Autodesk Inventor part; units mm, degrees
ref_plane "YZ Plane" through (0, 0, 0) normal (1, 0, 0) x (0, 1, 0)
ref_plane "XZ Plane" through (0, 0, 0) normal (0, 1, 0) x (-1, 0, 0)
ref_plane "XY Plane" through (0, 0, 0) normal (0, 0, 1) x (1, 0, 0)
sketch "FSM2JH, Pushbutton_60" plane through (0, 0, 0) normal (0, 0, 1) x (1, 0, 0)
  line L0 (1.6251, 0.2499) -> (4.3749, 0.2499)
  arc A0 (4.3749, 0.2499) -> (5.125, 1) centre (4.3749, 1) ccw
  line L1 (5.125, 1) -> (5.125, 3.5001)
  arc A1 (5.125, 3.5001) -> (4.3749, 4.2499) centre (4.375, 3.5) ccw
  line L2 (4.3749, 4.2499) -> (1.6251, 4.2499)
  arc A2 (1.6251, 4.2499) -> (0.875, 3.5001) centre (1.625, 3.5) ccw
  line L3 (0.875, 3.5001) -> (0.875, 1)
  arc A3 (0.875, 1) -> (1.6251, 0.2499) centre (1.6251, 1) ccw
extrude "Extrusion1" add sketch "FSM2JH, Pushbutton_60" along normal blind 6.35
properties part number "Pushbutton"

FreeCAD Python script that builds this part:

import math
import FreeCAD as App
import Part
import Sketcher
from FreeCAD import Vector
Q = App.Units.Quantity

doc = App.newDocument("Part")
params = doc.addObject("Spreadsheet::Sheet", "Params")
for row, (alias, value) in enumerate([
    ("sketch1_radius", "0.75 mm"),
    ("sketch1_height", "2.5 mm"),
    ("pad1_length", "6.35 mm"),
], start=1):
    params.set(f"A{row}", alias)
    params.set(f"B{row}", "=" + value)
    params.setAlias(f"B{row}", alias)

body = doc.addObject("PartDesign::Body", "Body")

# Sketch on XY plane
sketch1 = body.newObject("Sketcher::SketchObject", "Sketch")
sketch1.AttachmentSupport = (doc.getObject("XY_Plane"), [""])
sketch1.MapMode = "FlatFace"
sketch1.addGeometry(Part.ArcOfCircle(Part.Circle(Vector(1.6251, 1, 0), Vector(0, 0, 1), 0.7501), math.radians(180), math.radians(270)), False)
sketch1.addGeometry(Part.LineSegment(Vector(1.6251, 0.2499, 0), Vector(4.3749, 0.2499, 0)), False)
sketch1.addGeometry(Part.ArcOfCircle(Part.Circle(Vector(4.3749, 1, 0), Vector(0, 0, 1), 0.7501), math.radians(-90), math.radians(0)), False)
sketch1.addGeometry(Part.LineSegment(Vector(5.125, 1, 0), Vector(5.125, 3.5001, 0)), False)
sketch1.addGeometry(Part.ArcOfCircle(Part.Circle(Vector(4.375, 3.5, 0), Vector(0, 0, 1), 0.75), math.radians(0.007639), math.radians(90.00764)), False)
sketch1.addGeometry(Part.LineSegment(Vector(4.3749, 4.2499, 0), Vector(1.6251, 4.2499, 0)), False)
sketch1.addGeometry(Part.ArcOfCircle(Part.Circle(Vector(1.625, 3.5, 0), Vector(0, 0, 1), 0.7499), math.radians(89.99236), math.radians(179.992361)), False)
sketch1.addGeometry(Part.LineSegment(Vector(0.875, 3.5001, 0), Vector(0.875, 1, 0)), False)
sketch1.addConstraint(Sketcher.Constraint("Tangent", 0, 2, 1, 1))
sketch1.addConstraint(Sketcher.Constraint("Tangent", 1, 2, 2, 1))
sketch1.addConstraint(Sketcher.Constraint("Tangent", 2, 2, 3, 1))
sketch1.addConstraint(Sketcher.Constraint("Tangent", 3, 2, 4, 1))
sketch1.addConstraint(Sketcher.Constraint("Tangent", 4, 2, 5, 1))
sketch1.addConstraint(Sketcher.Constraint("Tangent", 5, 2, 6, 1))
sketch1.addConstraint(Sketcher.Constraint("Tangent", 6, 2, 7, 1))
sketch1.addConstraint(Sketcher.Constraint("Tangent", 7, 2, 0, 1))
sketch1.addConstraint(Sketcher.Constraint("Horizontal", 1))
sketch1.addConstraint(Sketcher.Constraint("Vertical", 3))
sketch1.addConstraint(Sketcher.Constraint("Horizontal", 5))
sketch1.addConstraint(Sketcher.Constraint("Vertical", 7))
sketch1.addConstraint(Sketcher.Constraint("Equal", 0, 2))
sketch1.addConstraint(Sketcher.Constraint("Equal", 2, 4))
sketch1.addConstraint(Sketcher.Constraint("Equal", 4, 6))
sketch1.addConstraint(Sketcher.Constraint("Radius", 0, Q("0.75 mm")))
sketch1.addConstraint(Sketcher.Constraint("DistanceY", 3, 1, 3, 2, Q("2.5 mm")))
sketch1.addConstraint(Sketcher.Constraint("DistanceY", -1, 1, 0, 3, Q("1 mm")))
sketch1.addConstraint(Sketcher.Constraint("DistanceX", 0, 3, 2, 2, Q("3.5 mm")))
sketch1.addConstraint(Sketcher.Constraint("DistanceX", -1, 1, 0, 3, Q("1.625 mm")))
sketch1.setExpression("Constraints[15]", "Params.sketch1_radius")
sketch1.setExpression("Constraints[16]", "Params.sketch1_height")
pad1 = body.newObject("PartDesign::Pad", "Pad")
pad1.Profile = sketch1
pad1.setExpression("Length", "Params.pad1_length")

doc.recompute()
